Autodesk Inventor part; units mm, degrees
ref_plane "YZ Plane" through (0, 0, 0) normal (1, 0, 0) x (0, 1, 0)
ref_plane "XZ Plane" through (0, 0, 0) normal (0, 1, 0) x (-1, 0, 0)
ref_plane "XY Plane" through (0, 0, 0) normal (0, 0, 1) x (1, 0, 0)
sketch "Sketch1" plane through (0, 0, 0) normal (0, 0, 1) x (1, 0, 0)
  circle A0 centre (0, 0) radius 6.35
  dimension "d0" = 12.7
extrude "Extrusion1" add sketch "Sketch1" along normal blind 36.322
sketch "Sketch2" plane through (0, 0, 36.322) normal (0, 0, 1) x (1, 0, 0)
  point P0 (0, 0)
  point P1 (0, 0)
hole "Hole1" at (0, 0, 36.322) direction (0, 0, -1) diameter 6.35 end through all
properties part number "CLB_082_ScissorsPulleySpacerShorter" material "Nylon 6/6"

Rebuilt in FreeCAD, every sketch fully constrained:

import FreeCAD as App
import Part
import Sketcher
Q = App.Units.Quantity

doc = App.newDocument("Part")
body = doc.addObject("PartDesign::Body", "Body")

sketch1 = body.newObject("Sketcher::SketchObject", "Sketch")
sketch1.AttachmentSupport = (doc.getObject("XY_Plane"), [""])
sketch1.MapMode = "FlatFace"
sketch1.addGeometry(Part.Circle(App.Vector(0, 0, 0), App.Vector(0, 0, 1), 6), False)
sketch1.addConstraint([
    Sketcher.Constraint("Coincident", 0, 3, -1, 1),
    Sketcher.Constraint("Diameter", 0, Q("0.5 in")),
])
pad1 = body.newObject("PartDesign::Pad", "Pad")
pad1.Profile = sketch1
pad1.Length = Q("1.43 in")

sketch2 = body.newObject("Sketcher::SketchObject", "Sketch001")
sketch2.AttachmentSupport = (doc.getObject("XY_Plane"), [""])
sketch2.MapMode = "FlatFace"
sketch2.AttachmentOffset = App.Placement(App.Vector(0, 0, 1.43 * 25.4), App.Rotation())
sketch2.addGeometry(Part.Circle(App.Vector(0, 0, 0), App.Vector(0, 0, 1), 3.2), False)
sketch2.addConstraint([
    Sketcher.Constraint("Coincident", 0, 3, -1, 1),
    Sketcher.Constraint("Diameter", 0, Q("0.25 in")),
])
doc.recompute()
hole = body.newObject("PartDesign::Hole", "Hole")
hole.Profile = sketch2
hole.ThreadType = "None"
hole.Diameter = Q("0.25 in")
hole.DepthType = "ThroughAll"

doc.recompute()
